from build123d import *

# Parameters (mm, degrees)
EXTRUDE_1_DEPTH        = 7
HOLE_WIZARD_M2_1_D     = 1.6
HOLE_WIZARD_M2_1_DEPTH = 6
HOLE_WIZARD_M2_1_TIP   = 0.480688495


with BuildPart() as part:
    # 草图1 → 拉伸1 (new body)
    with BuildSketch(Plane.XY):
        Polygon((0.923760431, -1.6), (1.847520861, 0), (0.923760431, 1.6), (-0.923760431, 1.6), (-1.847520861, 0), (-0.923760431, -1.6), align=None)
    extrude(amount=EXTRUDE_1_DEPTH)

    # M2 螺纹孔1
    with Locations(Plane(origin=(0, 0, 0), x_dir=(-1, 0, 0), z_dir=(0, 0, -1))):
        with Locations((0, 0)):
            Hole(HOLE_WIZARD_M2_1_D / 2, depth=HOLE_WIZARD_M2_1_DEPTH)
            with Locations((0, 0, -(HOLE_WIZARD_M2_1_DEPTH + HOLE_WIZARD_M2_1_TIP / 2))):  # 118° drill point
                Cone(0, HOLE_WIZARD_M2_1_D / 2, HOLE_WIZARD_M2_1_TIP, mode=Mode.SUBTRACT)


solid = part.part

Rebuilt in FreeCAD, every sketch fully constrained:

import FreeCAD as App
import Part
import Sketcher
Q = App.Units.Quantity

doc = App.newDocument("Part")
params = doc.addObject("Spreadsheet::Sheet", "Params")
for row, (alias, value) in enumerate([
    ("pad1_length", "7 mm"),
    ("sketch2_diameter", "1.6 mm"),
    ("hole_diameter", "1.6 mm"),
    ("hole_depth", "6 mm"),
], start=1):
    params.set(f"A{row}", alias)
    params.set(f"B{row}", "=" + value)
    params.setAlias(f"B{row}", alias)

body = doc.addObject("PartDesign::Body", "Body")

sketch1 = body.newObject("Sketcher::SketchObject", "Sketch")
sketch1.AttachmentSupport = (doc.getObject("XY_Plane"), [""])
sketch1.MapMode = "FlatFace"
sketch1.addGeometry([
    Part.LineSegment(App.Vector(0.9, -1.6, 0), App.Vector(1.8, 0, 0)),
    Part.LineSegment(App.Vector(1.8, 0, 0), App.Vector(0.9, 1.6, 0)),
    Part.LineSegment(App.Vector(0.9, 1.6, 0), App.Vector(-0.9, 1.6, 0)),
    Part.LineSegment(App.Vector(-0.9, 1.6, 0), App.Vector(-1.8, 0, 0)),
    Part.LineSegment(App.Vector(-1.8, 0, 0), App.Vector(-0.9, -1.6, 0)),
    Part.LineSegment(App.Vector(-0.9, -1.6, 0), App.Vector(0.9, -1.6, 0)),
], False)
sketch1.addConstraint([
    Sketcher.Constraint("Coincident", 0, 2, 1, 1),
    Sketcher.Constraint("Coincident", 1, 2, 2, 1),
    Sketcher.Constraint("Coincident", 2, 2, 3, 1),
    Sketcher.Constraint("Coincident", 3, 2, 4, 1),
    Sketcher.Constraint("Coincident", 4, 2, 5, 1),
    Sketcher.Constraint("Coincident", 5, 2, 0, 1),
    Sketcher.Constraint("Horizontal", 2),
    Sketcher.Constraint("Horizontal", 5),
    Sketcher.Constraint("Symmetric", 0, 2, 3, 2, -1, 1),
    Sketcher.Constraint("Symmetric", 1, 2, 4, 2, -1, 1),
    Sketcher.Constraint("PointOnObject", 0, 2, -1),
    Sketcher.Constraint("Parallel", 0, 3),
    Sketcher.Constraint("Vertical", 2, 2, 4, 2),
    Sketcher.Constraint("Angle", 0, Q("60 deg")),
    Sketcher.Constraint("DistanceY", -1, 1, 1, 2, 1.6),
    Sketcher.Constraint("DistanceX", 2, 2, 2, 1, 1.847521),
])
pad1 = body.newObject("PartDesign::Pad", "Pad")
pad1.Profile = sketch1
pad1.setExpression("Length", "Params.pad1_length")

sketch2 = body.newObject("Sketcher::SketchObject", "Sketch001")
sketch2.AttachmentSupport = (doc.getObject("XY_Plane"), [""])
sketch2.MapMode = "FlatFace"
sketch2.addGeometry(Part.Circle(App.Vector(0, 0, 0), App.Vector(0, 0, 1), 0.8), False)
sketch2.addConstraint([
    Sketcher.Constraint("Coincident", 0, 3, -1, 1),
    Sketcher.Constraint("Diameter", 0, 1.6),
])
sketch2.setExpression("Constraints[1]", "Params.sketch2_diameter")
doc.recompute()
hole = body.newObject("PartDesign::Hole", "Hole")
hole.Profile = sketch2
hole.ThreadType = "None"
hole.setExpression("Diameter", "Params.hole_diameter")
hole.DepthType = "Dimension"
hole.setExpression("Depth", "Params.hole_depth")
hole.DrillPoint = "Angled"
hole.DrillPointAngle = 118
hole.Reversed = True

doc.recompute()
